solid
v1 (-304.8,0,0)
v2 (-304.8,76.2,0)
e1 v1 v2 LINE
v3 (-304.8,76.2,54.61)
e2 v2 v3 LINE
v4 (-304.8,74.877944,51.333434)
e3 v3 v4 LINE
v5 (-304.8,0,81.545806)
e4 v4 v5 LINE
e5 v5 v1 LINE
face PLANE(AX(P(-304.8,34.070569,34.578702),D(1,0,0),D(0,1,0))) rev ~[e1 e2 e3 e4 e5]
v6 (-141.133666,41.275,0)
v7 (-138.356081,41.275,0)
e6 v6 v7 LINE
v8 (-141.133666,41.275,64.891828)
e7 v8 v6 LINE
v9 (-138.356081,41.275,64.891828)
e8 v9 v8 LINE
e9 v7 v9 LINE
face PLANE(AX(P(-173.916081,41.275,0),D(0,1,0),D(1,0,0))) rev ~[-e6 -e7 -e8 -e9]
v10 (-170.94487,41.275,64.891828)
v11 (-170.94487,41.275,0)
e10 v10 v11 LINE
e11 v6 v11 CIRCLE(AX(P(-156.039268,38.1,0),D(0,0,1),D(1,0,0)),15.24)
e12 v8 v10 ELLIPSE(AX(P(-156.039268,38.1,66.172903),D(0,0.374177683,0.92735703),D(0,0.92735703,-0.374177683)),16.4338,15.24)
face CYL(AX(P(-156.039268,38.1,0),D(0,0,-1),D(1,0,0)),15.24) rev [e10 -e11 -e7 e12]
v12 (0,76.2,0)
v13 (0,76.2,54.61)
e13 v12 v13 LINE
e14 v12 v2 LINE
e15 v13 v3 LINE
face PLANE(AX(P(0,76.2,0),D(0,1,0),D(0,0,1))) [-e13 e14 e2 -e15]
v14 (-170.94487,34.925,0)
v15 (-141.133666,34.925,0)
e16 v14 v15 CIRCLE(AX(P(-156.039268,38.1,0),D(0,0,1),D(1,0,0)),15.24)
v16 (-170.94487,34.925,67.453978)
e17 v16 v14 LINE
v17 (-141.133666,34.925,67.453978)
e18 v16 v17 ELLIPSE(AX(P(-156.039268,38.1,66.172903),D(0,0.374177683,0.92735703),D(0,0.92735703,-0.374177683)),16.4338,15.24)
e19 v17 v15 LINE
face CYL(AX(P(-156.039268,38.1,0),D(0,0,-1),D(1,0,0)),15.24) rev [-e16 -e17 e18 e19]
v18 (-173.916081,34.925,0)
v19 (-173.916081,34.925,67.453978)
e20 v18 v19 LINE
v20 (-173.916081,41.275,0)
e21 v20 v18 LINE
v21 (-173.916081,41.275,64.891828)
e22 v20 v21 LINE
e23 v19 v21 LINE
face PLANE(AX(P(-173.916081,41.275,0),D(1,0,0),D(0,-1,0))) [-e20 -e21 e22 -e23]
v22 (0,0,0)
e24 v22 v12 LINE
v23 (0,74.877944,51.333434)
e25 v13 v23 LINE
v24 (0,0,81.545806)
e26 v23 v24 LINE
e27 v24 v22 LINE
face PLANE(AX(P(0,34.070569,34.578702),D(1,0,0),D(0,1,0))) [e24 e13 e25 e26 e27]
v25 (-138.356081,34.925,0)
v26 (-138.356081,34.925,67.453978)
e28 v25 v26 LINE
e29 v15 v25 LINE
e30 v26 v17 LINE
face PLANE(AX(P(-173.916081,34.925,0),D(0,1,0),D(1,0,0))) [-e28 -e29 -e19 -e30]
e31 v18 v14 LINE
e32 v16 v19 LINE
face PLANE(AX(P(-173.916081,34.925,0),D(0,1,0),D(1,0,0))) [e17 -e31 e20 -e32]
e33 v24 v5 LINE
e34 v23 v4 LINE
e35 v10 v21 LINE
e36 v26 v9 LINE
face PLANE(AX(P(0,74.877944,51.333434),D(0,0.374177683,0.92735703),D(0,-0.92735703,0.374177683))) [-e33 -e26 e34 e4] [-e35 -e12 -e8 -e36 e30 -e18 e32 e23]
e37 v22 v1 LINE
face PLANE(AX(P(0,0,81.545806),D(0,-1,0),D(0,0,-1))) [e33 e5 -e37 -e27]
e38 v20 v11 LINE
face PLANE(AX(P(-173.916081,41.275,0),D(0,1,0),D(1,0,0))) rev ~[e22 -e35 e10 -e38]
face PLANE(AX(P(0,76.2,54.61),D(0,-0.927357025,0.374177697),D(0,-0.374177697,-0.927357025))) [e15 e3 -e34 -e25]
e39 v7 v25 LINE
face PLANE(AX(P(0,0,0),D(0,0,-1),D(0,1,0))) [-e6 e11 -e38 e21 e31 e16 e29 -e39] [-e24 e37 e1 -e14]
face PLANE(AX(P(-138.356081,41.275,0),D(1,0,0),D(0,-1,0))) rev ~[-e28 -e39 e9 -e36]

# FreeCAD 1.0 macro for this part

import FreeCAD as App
import Part
import Sketcher
from FreeCAD import Vector
Q = App.Units.Quantity


def add_polygon(sketch, points):
    """Adds a closed chain of lines whose ends are joined by coincident constraints."""
    first, n = sketch.GeometryCount, len(points)
    for a, b in zip(points, points[1:] + points[:1]):
        sketch.addGeometry(Part.LineSegment(App.Vector(*a, 0), App.Vector(*b, 0)), False)
    for i in range(n):
        sketch.addConstraint(Sketcher.Constraint("Coincident", first + i, 2, first + (i + 1) % n, 1))

doc = App.newDocument("Part")
body = doc.addObject("PartDesign::Body", "Body")

# Sketch on YZ plane
sketch1 = body.newObject("Sketcher::SketchObject", "Sketch")
sketch1.AttachmentSupport = (doc.getObject("YZ_Plane"), [""])
sketch1.MapMode = "FlatFace"
add_polygon(sketch1, [(0, 81.5), (0, 0), (76.2, 0), (76.2, 54.6), (74.9, 51.3)])  # lines 0-4
sketch1.addConstraint([
    Sketcher.Constraint("Vertical", 0),
    Sketcher.Constraint("Horizontal", 1),
    Sketcher.Constraint("Vertical", 2),
    Sketcher.Constraint("Coincident", 0, 2, -1, 1),
    Sketcher.Constraint("Perpendicular", 3, 4),
    Sketcher.Constraint("DistanceX", 1, 1, 1, 2, Q("3 in")),
    Sketcher.Constraint("DistanceY", 2, 1, 2, 2, Q("2.15 in")),
    Sketcher.Constraint("Distance", 3, 3.53323),
    Sketcher.Constraint("DistanceY", 0, 2, 0, 1, 81.545806),
])
pad1 = body.newObject("PartDesign::Pad", "Pad")
pad1.Profile = sketch1
pad1.Length = Q("12 in")
pad1.Reversed = True

# Sketch on XY plane
sketch2 = body.newObject("Sketcher::SketchObject", "Sketch001")
sketch2.AttachmentSupport = (doc.getObject("XY_Plane"), [""])
sketch2.MapMode = "FlatFace"
sketch2.addGeometry(Part.Circle(Vector(-156, 38, 0), Vector(0, 0, 1), 15), False)
sketch2.addConstraint([
    Sketcher.Constraint("Diameter", 0, Q("1.2 in")),
    Sketcher.Constraint("DistanceY", -1, 1, 0, 3, Q("1.5 in")),
    Sketcher.Constraint("DistanceX", 0, 3, -1, 1, 156.039268),
])
pocket1 = body.newObject("PartDesign::Pocket", "Pocket")
pocket1.Profile = sketch2
pocket1.Type = "ThroughAll"
pocket1.Reversed = True

# Sketch on XY plane
sketch3 = body.newObject("Sketcher::SketchObject", "Sketch002")
sketch3.AttachmentSupport = (doc.getObject("XY_Plane"), [""])
sketch3.MapMode = "FlatFace"
add_polygon(sketch3, [(-174, 35), (-174, 41), (-138, 41), (-138, 35)])  # lines 0-3
sketch3.addConstraint([
    Sketcher.Constraint("Vertical", 0),
    Sketcher.Constraint("Horizontal", 1),
    Sketcher.Constraint("Vertical", 2),
    Sketcher.Constraint("Horizontal", 3),
    Sketcher.Constraint("DistanceX", 1, 1, 1, 2, Q("1.4 in")),
    Sketcher.Constraint("DistanceY", 0, 1, 0, 2, Q("0.25 in")),
    Sketcher.Constraint("DistanceY", -1, 1, 0, 2, Q("1.625 in")),
    Sketcher.Constraint("DistanceX", 0, 2, -1, 1, 173.916081),
])
pocket2 = body.newObject("PartDesign::Pocket", "Pocket001")
pocket2.Profile = sketch3
pocket2.Type = "ThroughAll"
pocket2.Reversed = True

doc.recompute()
